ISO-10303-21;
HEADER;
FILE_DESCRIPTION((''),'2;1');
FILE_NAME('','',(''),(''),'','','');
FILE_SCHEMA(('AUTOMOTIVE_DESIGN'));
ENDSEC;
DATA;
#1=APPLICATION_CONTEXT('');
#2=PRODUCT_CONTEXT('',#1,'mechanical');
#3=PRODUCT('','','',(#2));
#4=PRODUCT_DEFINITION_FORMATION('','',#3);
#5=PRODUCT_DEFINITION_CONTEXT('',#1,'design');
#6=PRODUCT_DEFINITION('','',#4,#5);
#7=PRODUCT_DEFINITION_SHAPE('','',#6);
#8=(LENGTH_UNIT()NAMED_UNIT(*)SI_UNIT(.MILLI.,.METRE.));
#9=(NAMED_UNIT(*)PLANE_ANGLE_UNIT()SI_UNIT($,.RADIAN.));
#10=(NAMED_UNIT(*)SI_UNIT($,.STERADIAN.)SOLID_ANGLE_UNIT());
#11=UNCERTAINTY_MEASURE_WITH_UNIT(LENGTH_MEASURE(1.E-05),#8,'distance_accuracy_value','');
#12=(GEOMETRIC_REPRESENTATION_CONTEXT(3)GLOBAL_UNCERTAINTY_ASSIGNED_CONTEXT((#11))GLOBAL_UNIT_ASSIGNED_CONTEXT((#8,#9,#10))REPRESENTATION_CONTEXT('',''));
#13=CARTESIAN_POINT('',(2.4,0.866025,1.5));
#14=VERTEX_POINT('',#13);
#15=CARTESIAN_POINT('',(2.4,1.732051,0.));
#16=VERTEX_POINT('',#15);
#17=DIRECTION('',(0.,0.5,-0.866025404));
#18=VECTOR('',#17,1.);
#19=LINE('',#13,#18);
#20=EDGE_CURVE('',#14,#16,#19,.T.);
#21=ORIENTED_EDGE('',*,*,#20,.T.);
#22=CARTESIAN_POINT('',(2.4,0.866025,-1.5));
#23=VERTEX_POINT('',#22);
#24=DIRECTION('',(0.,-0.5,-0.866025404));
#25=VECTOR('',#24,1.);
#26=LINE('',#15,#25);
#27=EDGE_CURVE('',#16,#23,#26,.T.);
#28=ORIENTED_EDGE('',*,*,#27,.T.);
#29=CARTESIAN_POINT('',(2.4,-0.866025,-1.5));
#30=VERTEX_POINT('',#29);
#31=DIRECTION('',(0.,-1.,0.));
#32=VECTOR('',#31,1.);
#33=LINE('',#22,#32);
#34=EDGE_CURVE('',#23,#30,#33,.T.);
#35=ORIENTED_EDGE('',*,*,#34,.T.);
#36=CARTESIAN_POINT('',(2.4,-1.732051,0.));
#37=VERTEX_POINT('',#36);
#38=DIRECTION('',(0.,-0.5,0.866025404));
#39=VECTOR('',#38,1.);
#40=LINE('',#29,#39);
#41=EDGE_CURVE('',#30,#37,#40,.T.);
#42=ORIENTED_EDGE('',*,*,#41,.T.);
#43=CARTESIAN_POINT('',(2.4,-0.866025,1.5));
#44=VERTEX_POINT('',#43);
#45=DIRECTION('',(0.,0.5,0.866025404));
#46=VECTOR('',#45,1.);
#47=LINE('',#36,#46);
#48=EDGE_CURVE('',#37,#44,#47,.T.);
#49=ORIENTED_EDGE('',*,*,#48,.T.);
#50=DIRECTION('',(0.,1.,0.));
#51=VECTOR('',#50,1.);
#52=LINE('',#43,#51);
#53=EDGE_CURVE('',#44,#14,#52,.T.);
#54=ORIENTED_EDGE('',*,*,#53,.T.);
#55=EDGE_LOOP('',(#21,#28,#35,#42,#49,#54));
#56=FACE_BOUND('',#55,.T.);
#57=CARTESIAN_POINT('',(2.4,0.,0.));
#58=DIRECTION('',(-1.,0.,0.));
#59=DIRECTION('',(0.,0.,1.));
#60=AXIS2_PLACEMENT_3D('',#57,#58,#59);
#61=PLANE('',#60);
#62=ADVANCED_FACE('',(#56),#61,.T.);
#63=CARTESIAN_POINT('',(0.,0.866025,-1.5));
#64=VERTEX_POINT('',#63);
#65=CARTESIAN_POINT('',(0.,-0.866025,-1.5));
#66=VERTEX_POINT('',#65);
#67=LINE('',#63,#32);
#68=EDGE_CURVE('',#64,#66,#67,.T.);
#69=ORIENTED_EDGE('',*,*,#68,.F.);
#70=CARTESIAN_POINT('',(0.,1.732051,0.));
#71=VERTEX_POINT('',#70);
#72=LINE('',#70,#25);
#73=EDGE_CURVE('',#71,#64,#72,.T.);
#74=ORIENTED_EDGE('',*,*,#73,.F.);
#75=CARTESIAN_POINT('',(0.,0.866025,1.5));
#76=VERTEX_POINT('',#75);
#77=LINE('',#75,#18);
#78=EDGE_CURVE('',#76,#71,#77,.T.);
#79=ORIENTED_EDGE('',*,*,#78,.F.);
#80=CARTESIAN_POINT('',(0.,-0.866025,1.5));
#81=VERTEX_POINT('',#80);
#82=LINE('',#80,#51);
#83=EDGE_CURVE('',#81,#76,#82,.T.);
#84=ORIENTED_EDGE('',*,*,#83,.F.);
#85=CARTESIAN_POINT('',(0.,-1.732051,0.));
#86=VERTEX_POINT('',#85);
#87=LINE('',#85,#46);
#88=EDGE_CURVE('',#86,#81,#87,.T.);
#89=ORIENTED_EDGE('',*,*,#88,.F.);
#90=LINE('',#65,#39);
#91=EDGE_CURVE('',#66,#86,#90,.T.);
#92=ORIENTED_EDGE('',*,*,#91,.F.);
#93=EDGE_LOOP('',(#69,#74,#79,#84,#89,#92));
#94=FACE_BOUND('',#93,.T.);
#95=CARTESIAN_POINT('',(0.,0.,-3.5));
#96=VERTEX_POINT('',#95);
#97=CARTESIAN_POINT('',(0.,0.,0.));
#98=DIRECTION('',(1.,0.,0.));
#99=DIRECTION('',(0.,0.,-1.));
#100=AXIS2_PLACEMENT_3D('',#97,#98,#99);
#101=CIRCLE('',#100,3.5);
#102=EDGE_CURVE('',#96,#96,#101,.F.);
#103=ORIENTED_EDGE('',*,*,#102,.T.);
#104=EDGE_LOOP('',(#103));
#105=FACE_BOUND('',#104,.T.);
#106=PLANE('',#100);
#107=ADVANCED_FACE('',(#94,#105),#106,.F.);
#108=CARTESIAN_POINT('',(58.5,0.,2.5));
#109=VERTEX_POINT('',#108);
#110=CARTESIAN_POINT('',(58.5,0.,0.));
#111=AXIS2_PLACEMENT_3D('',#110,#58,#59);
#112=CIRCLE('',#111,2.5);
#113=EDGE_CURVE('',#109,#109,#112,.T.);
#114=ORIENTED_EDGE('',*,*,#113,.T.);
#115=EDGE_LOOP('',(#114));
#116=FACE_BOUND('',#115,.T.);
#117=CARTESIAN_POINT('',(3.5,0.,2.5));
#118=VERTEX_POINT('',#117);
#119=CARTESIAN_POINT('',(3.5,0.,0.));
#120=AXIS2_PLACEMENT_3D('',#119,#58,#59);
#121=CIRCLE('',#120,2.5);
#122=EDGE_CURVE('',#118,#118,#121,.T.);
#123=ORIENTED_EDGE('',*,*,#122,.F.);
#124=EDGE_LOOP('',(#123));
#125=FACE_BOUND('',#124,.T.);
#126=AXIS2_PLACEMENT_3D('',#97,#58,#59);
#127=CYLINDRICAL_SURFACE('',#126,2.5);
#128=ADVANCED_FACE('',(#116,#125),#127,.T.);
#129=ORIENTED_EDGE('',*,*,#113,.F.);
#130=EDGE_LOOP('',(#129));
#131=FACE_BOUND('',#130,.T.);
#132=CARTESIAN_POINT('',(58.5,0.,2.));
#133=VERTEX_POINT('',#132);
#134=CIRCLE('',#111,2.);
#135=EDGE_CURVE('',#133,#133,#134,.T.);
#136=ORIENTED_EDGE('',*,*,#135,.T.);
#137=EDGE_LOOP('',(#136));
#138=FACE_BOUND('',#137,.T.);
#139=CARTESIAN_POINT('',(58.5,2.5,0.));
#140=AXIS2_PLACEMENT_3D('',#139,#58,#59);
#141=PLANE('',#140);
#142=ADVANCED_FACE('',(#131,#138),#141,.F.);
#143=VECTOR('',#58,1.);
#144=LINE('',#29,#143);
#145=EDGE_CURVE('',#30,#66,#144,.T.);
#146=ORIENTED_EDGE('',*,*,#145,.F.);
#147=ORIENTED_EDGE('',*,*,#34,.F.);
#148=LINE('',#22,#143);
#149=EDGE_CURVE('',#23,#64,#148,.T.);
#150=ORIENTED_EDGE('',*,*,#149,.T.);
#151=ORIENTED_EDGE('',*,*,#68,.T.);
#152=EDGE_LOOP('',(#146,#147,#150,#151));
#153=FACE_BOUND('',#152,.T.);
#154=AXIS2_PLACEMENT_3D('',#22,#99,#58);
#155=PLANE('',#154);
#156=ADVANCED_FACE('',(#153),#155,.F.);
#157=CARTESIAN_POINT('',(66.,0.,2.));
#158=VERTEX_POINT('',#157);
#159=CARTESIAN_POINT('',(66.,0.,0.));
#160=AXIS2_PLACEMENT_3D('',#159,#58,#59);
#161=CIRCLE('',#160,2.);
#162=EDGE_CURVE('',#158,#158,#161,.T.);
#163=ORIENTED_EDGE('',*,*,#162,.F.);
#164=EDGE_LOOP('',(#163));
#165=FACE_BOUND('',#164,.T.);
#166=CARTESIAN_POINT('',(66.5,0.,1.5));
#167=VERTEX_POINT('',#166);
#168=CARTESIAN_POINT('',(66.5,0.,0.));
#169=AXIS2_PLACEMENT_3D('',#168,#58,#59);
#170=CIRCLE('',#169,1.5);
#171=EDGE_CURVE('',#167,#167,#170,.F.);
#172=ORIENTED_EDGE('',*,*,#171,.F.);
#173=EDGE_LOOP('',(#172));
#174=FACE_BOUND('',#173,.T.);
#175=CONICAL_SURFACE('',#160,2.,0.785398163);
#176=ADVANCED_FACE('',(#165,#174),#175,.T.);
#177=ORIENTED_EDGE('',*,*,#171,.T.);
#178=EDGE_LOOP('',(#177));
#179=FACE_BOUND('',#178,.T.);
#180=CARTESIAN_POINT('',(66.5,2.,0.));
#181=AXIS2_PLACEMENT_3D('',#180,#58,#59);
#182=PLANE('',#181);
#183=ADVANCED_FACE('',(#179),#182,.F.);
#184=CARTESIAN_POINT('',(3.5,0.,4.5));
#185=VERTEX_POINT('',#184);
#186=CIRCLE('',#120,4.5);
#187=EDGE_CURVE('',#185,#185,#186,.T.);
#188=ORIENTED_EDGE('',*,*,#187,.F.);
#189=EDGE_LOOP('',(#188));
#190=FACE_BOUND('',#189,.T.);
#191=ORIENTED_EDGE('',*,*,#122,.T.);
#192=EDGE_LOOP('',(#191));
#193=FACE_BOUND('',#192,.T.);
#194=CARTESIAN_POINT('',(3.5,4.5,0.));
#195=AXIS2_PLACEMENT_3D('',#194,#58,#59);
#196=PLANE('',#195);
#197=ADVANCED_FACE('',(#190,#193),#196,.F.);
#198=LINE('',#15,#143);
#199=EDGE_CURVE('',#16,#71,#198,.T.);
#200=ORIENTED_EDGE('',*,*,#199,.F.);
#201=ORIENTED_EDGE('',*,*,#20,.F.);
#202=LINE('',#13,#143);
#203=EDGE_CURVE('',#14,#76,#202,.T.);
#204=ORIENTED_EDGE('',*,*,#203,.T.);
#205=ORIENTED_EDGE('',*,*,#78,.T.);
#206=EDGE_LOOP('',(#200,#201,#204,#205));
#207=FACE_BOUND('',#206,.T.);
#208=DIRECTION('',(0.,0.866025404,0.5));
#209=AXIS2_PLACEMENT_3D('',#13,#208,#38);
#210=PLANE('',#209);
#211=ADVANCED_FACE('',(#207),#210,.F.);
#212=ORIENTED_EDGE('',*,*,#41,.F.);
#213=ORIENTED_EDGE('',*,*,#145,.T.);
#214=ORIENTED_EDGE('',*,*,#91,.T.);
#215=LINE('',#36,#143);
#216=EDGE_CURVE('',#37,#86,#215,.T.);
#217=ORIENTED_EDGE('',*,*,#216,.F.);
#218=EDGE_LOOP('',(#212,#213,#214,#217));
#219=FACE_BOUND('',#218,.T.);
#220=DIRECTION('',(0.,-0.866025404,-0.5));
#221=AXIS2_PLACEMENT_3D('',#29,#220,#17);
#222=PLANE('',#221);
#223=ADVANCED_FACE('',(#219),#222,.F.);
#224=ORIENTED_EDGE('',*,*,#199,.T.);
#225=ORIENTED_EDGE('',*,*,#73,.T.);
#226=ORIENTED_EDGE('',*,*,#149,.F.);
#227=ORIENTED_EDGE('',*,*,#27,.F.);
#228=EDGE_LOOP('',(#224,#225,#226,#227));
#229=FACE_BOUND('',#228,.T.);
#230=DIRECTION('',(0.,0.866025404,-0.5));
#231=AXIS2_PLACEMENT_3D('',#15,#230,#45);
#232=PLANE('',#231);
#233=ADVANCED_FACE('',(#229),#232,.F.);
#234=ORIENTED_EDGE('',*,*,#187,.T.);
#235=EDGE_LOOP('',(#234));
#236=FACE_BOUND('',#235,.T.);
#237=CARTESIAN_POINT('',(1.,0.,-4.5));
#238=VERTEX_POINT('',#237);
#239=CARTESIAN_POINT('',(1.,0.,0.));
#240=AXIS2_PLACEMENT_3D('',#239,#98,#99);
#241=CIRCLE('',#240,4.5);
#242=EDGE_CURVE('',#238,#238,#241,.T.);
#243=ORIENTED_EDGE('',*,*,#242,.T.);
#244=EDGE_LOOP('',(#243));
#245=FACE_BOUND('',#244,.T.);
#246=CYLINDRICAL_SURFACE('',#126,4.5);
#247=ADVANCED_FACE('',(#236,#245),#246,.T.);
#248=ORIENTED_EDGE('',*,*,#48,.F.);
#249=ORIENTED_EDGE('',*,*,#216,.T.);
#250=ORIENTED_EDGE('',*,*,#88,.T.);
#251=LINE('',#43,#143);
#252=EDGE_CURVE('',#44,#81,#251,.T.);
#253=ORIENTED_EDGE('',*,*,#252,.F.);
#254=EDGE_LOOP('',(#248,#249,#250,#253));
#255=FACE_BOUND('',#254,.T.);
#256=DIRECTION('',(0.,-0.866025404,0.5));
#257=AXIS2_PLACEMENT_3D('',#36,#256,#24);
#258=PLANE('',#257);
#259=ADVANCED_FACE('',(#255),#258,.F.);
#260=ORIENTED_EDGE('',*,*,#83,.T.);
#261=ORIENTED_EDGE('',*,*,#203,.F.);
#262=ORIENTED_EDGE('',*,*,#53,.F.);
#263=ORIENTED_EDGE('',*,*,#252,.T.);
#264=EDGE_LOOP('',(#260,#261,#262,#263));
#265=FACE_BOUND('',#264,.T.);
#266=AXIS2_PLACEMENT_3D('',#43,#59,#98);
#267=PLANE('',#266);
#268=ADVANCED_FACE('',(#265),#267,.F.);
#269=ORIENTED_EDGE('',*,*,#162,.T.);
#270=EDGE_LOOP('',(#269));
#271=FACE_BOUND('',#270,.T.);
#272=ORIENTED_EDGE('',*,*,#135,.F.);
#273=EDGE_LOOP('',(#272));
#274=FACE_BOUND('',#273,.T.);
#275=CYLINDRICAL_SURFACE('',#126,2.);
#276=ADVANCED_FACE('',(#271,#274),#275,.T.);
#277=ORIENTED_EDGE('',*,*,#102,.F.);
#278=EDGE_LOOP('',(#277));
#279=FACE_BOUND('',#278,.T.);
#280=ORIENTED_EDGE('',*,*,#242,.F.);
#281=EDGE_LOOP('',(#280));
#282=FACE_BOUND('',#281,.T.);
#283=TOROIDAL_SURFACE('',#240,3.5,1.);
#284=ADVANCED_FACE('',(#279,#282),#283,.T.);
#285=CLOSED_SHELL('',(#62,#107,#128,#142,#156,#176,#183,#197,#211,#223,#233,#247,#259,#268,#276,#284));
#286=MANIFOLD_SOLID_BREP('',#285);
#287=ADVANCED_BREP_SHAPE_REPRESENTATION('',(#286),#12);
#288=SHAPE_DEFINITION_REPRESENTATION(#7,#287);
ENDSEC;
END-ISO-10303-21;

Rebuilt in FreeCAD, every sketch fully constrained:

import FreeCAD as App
import Part
import Sketcher
Q = App.Units.Quantity


def edges_at(feature, points):
    """Names of the edges that pass closest to the given points."""
    edges = feature.Shape.Edges
    near = lambda p: min(range(len(edges)), key=lambda i: edges[i].distToShape(Part.Vertex(*p))[0])
    return sorted({f"Edge{near(p) + 1}" for p in points})

doc = App.newDocument("Part")
params = doc.addObject("Spreadsheet::Sheet", "Params")
for row, (alias, value) in enumerate([
    ("sketch1_width", "8 mm"),
    ("sketch1_width2", "55 mm"),
    ("sketch1_height", "2 mm"),
    ("sketch1_width3", "66.5 mm"),
    ("sketch1_height2", "4.5 mm"),
    ("revolution_angle", "360 deg"),
    ("pocket1_length", "2.4 mm"),
    ("fillet_radius", "1 mm"),
    ("chamfer_size", "0.5 mm"),
], start=1):
    params.set(f"A{row}", alias)
    params.set(f"B{row}", "=" + value)
    params.setAlias(f"B{row}", alias)

body = doc.addObject("PartDesign::Body", "Body")

sketch1 = doc.addObject("Sketcher::SketchObject", "Sketch")
body.addObject(sketch1)
sketch1.AttachmentSupport = (doc.XY_Plane, [""])
sketch1.MapMode = "FlatFace"
sketch1.addGeometry([
    Part.LineSegment(App.Vector(0, 4.5, 0), App.Vector(0, 0, 0)),
    Part.LineSegment(App.Vector(0, 0, 0), App.Vector(66.5, 0, 0)),
    Part.LineSegment(App.Vector(66.5, 0, 0), App.Vector(66.5, 2, 0)),
    Part.LineSegment(App.Vector(66.5, 2, 0), App.Vector(58.5, 2, 0)),
    Part.LineSegment(App.Vector(58.5, 2, 0), App.Vector(58.5, 2.5, 0)),
    Part.LineSegment(App.Vector(58.5, 2.5, 0), App.Vector(3.5, 2.5, 0)),
    Part.LineSegment(App.Vector(3.5, 2.5, 0), App.Vector(3.5, 4.5, 0)),
    Part.LineSegment(App.Vector(3.5, 4.5, 0), App.Vector(0, 4.5, 0)),
], False)
sketch1.addConstraint([
    Sketcher.Constraint("Coincident", 0, 2, 1, 1),
    Sketcher.Constraint("Coincident", 1, 2, 2, 1),
    Sketcher.Constraint("Coincident", 2, 2, 3, 1),
    Sketcher.Constraint("Coincident", 3, 2, 4, 1),
    Sketcher.Constraint("Coincident", 4, 2, 5, 1),
    Sketcher.Constraint("Coincident", 5, 2, 6, 1),
    Sketcher.Constraint("Coincident", 6, 2, 7, 1),
    Sketcher.Constraint("Coincident", 7, 2, 0, 1),
    Sketcher.Constraint("Vertical", 0),
    Sketcher.Constraint("Horizontal", 1),
    Sketcher.Constraint("Vertical", 2),
    Sketcher.Constraint("Horizontal", 3),
    Sketcher.Constraint("Vertical", 4),
    Sketcher.Constraint("Horizontal", 5),
    Sketcher.Constraint("Vertical", 6),
    Sketcher.Constraint("Horizontal", 7),
    Sketcher.Constraint("Coincident", 0, 2, -1, 1),
    Sketcher.Constraint("Equal", 2, 6),
    Sketcher.Constraint("DistanceX", 3, 2, 3, 1, 8.0),
    Sketcher.Constraint("DistanceX", 5, 2, 5, 1, 55.0),
    Sketcher.Constraint("DistanceY", 2, 1, 2, 2, 2.0),
    Sketcher.Constraint("DistanceX", 1, 1, 1, 2, 66.5),
    Sketcher.Constraint("DistanceY", 0, 2, 0, 1, 4.5),
])
sketch1.setExpression("Constraints[18]", "Params.sketch1_width")
sketch1.setExpression("Constraints[19]", "Params.sketch1_width2")
sketch1.setExpression("Constraints[20]", "Params.sketch1_height")
sketch1.setExpression("Constraints[21]", "Params.sketch1_width3")
sketch1.setExpression("Constraints[22]", "Params.sketch1_height2")
revolution = doc.addObject("PartDesign::Revolution", "Revolution")
body.addObject(revolution)
revolution.Profile = sketch1
revolution.ReferenceAxis = (sketch1, ["H_Axis"])
revolution.setExpression("Angle", "Params.revolution_angle")

sketch2 = doc.addObject("Sketcher::SketchObject", "Sketch001")
body.addObject(sketch2)
sketch2.AttachmentSupport = (doc.YZ_Plane, [""])
sketch2.MapMode = "FlatFace"
sketch2.addGeometry([
    Part.LineSegment(App.Vector(1.7, 0, 0), App.Vector(0.9, -1.5, 0)),
    Part.LineSegment(App.Vector(0.9, -1.5, 0), App.Vector(-0.9, -1.5, 0)),
    Part.LineSegment(App.Vector(-0.9, -1.5, 0), App.Vector(-1.7, 0, 0)),
    Part.LineSegment(App.Vector(-1.7, 0, 0), App.Vector(-0.9, 1.5, 0)),
    Part.LineSegment(App.Vector(-0.9, 1.5, 0), App.Vector(0.9, 1.5, 0)),
    Part.LineSegment(App.Vector(0.9, 1.5, 0), App.Vector(1.7, 0, 0)),
], False)
sketch2.addConstraint([
    Sketcher.Constraint("Coincident", 0, 2, 1, 1),
    Sketcher.Constraint("Coincident", 1, 2, 2, 1),
    Sketcher.Constraint("Coincident", 2, 2, 3, 1),
    Sketcher.Constraint("Coincident", 3, 2, 4, 1),
    Sketcher.Constraint("Coincident", 4, 2, 5, 1),
    Sketcher.Constraint("Coincident", 5, 2, 0, 1),
    Sketcher.Constraint("Horizontal", 1),
    Sketcher.Constraint("Horizontal", 4),
    Sketcher.Constraint("Symmetric", 0, 2, 3, 2, -1, 1),
    Sketcher.Constraint("Symmetric", 2, 2, 5, 2, -1, 1),
    Sketcher.Constraint("PointOnObject", 2, 2, -1),
    Sketcher.Constraint("Parallel", 2, 5),
    Sketcher.Constraint("Vertical", 1, 2, 3, 2),
    Sketcher.Constraint("Angle", 0, Q("-120 deg")),
    Sketcher.Constraint("DistanceY", 1, 2, 3, 2, 3.0),
    Sketcher.Constraint("DistanceX", 1, 2, 1, 1, 1.732051),
])
pocket1 = doc.addObject("PartDesign::Pocket", "Pocket")
body.addObject(pocket1)
pocket1.Profile = sketch2
pocket1.setExpression("Length", "Params.pocket1_length")
pocket1.Reversed = True
doc.recompute()

fillet = doc.addObject("PartDesign::Fillet", "Fillet")
body.addObject(fillet)
fillet.Base = (pocket1, edges_at(pocket1, [(0, 0, -4.5)]))
fillet.setExpression("Radius", "Params.fillet_radius")
doc.recompute()

chamfer = doc.addObject("PartDesign::Chamfer", "Chamfer")
body.addObject(chamfer)
chamfer.Base = (fillet, edges_at(fillet, [(66.5, 0, -2)]))
chamfer.setExpression("Size", "Params.chamfer_size")

doc.recompute()
